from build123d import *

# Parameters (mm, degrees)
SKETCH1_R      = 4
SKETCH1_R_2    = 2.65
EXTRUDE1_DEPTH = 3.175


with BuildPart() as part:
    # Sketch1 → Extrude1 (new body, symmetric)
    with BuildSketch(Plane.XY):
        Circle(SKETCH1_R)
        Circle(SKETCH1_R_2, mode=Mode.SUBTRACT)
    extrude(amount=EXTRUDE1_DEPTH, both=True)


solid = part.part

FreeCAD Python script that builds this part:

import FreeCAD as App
import Part
import Sketcher

doc = App.newDocument("Part")
body = doc.addObject("PartDesign::Body", "Body")

# Sketch on XY plane
sketch1 = body.newObject("Sketcher::SketchObject", "Sketch")
sketch1.AttachmentSupport = (doc.getObject("XY_Plane"), [""])
sketch1.MapMode = "FlatFace"
sketch1.addGeometry(Part.Circle(App.Vector(0, 0, 0), App.Vector(0, 0, 1), 4), False)
sketch1.addGeometry(Part.Circle(App.Vector(0, 0, 0), App.Vector(0, 0, 1), 2.6), False)
sketch1.addConstraint(Sketcher.Constraint("Coincident", 0, 3, -1, 1))
sketch1.addConstraint(Sketcher.Constraint("Coincident", 1, 3, -1, 1))
sketch1.addConstraint(Sketcher.Constraint("Diameter", 0, 8.0))
sketch1.addConstraint(Sketcher.Constraint("Diameter", 1, 5.3))
pad1 = body.newObject("PartDesign::Pad", "Pad")
pad1.Profile = sketch1
pad1.Length = 6.35
pad1.Midplane = True

doc.recompute()
